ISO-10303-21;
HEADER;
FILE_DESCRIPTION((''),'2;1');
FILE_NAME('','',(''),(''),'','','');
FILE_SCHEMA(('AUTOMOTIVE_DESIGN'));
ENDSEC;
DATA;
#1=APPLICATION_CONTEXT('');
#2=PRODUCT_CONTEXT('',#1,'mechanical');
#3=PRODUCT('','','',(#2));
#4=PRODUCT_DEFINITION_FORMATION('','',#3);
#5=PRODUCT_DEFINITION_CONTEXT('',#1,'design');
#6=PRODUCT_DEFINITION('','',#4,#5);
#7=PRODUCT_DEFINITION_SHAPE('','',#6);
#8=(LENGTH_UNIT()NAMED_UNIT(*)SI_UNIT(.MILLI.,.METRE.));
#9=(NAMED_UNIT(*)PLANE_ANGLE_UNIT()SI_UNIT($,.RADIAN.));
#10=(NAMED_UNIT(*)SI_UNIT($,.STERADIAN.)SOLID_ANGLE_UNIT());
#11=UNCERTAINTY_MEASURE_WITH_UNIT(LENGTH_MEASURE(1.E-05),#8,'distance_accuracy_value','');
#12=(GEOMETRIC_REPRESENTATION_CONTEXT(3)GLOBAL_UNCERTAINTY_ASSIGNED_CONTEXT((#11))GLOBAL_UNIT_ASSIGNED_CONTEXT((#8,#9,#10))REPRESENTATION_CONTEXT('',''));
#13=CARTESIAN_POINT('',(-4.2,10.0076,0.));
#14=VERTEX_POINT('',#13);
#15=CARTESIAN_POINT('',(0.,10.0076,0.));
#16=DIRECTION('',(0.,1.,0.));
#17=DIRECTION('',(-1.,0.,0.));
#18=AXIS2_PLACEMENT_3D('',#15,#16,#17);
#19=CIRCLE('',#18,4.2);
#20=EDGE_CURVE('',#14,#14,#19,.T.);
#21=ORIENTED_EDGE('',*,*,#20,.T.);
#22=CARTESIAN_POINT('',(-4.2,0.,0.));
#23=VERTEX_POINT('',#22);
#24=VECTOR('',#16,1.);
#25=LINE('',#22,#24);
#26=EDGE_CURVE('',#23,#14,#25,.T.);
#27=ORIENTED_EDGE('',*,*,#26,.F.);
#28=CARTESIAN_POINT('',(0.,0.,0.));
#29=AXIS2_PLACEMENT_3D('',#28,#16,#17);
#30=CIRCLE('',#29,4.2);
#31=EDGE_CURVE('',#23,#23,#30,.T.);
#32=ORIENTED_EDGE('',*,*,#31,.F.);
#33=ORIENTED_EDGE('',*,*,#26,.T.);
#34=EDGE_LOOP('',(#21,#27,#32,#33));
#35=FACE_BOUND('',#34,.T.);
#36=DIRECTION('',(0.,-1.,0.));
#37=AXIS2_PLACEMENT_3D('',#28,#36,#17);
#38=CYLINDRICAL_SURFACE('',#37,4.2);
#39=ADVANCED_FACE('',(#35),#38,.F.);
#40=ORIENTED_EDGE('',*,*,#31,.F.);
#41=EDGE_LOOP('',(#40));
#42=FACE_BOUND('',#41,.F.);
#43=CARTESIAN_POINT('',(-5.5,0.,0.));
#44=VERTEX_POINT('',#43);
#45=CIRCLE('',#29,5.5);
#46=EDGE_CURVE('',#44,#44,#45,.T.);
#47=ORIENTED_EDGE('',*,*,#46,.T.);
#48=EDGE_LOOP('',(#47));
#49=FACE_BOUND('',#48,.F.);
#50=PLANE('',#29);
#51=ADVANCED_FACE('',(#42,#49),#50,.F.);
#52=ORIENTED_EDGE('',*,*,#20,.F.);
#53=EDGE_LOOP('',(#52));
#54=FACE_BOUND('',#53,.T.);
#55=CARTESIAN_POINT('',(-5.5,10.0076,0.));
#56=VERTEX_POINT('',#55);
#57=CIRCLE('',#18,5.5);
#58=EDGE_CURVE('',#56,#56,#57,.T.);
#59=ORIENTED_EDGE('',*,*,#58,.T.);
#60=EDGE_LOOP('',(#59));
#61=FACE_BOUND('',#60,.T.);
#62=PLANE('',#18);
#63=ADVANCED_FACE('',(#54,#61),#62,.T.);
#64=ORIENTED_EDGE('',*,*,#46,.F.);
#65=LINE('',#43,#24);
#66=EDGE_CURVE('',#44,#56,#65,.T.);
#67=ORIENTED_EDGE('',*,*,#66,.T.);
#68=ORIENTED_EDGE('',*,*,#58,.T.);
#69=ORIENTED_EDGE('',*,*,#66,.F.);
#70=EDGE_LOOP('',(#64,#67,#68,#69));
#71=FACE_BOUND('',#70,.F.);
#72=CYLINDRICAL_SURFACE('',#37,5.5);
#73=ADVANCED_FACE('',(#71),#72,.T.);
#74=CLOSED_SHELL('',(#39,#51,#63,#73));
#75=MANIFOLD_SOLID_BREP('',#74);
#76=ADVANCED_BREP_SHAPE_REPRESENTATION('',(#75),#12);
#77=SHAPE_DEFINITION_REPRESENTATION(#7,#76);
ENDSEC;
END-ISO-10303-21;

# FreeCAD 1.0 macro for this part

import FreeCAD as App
import Part
import Sketcher

V = App.Vector
Q = App.Units.Quantity

doc = App.newDocument("Part")
body = doc.addObject("PartDesign::Body", "Body")

sketch1 = body.newObject("Sketcher::SketchObject", "Sketch")
sketch1.AttachmentSupport = (doc.getObject("XZ_Plane"), [""])
sketch1.MapMode = "FlatFace"
sketch1.addGeometry([
    Part.Circle(V(0, 0, 0), V(0, 0, 1), 5.5),
    Part.Circle(V(0, 0, 0), V(0, 0, 1), 4.2),
], False)
sketch1.addConstraint([
    Sketcher.Constraint("Coincident", 0, 3, -1, 1),
    Sketcher.Constraint("Coincident", 1, 3, -1, 1),
    Sketcher.Constraint("Diameter", 0, Q("11 mm")),
    Sketcher.Constraint("Diameter", 1, Q("8.4 mm")),
])
pad1 = body.newObject("PartDesign::Pad", "Pad")
pad1.Profile = sketch1
pad1.Length = 10.0076
pad1.Reversed = True

doc.recompute()
